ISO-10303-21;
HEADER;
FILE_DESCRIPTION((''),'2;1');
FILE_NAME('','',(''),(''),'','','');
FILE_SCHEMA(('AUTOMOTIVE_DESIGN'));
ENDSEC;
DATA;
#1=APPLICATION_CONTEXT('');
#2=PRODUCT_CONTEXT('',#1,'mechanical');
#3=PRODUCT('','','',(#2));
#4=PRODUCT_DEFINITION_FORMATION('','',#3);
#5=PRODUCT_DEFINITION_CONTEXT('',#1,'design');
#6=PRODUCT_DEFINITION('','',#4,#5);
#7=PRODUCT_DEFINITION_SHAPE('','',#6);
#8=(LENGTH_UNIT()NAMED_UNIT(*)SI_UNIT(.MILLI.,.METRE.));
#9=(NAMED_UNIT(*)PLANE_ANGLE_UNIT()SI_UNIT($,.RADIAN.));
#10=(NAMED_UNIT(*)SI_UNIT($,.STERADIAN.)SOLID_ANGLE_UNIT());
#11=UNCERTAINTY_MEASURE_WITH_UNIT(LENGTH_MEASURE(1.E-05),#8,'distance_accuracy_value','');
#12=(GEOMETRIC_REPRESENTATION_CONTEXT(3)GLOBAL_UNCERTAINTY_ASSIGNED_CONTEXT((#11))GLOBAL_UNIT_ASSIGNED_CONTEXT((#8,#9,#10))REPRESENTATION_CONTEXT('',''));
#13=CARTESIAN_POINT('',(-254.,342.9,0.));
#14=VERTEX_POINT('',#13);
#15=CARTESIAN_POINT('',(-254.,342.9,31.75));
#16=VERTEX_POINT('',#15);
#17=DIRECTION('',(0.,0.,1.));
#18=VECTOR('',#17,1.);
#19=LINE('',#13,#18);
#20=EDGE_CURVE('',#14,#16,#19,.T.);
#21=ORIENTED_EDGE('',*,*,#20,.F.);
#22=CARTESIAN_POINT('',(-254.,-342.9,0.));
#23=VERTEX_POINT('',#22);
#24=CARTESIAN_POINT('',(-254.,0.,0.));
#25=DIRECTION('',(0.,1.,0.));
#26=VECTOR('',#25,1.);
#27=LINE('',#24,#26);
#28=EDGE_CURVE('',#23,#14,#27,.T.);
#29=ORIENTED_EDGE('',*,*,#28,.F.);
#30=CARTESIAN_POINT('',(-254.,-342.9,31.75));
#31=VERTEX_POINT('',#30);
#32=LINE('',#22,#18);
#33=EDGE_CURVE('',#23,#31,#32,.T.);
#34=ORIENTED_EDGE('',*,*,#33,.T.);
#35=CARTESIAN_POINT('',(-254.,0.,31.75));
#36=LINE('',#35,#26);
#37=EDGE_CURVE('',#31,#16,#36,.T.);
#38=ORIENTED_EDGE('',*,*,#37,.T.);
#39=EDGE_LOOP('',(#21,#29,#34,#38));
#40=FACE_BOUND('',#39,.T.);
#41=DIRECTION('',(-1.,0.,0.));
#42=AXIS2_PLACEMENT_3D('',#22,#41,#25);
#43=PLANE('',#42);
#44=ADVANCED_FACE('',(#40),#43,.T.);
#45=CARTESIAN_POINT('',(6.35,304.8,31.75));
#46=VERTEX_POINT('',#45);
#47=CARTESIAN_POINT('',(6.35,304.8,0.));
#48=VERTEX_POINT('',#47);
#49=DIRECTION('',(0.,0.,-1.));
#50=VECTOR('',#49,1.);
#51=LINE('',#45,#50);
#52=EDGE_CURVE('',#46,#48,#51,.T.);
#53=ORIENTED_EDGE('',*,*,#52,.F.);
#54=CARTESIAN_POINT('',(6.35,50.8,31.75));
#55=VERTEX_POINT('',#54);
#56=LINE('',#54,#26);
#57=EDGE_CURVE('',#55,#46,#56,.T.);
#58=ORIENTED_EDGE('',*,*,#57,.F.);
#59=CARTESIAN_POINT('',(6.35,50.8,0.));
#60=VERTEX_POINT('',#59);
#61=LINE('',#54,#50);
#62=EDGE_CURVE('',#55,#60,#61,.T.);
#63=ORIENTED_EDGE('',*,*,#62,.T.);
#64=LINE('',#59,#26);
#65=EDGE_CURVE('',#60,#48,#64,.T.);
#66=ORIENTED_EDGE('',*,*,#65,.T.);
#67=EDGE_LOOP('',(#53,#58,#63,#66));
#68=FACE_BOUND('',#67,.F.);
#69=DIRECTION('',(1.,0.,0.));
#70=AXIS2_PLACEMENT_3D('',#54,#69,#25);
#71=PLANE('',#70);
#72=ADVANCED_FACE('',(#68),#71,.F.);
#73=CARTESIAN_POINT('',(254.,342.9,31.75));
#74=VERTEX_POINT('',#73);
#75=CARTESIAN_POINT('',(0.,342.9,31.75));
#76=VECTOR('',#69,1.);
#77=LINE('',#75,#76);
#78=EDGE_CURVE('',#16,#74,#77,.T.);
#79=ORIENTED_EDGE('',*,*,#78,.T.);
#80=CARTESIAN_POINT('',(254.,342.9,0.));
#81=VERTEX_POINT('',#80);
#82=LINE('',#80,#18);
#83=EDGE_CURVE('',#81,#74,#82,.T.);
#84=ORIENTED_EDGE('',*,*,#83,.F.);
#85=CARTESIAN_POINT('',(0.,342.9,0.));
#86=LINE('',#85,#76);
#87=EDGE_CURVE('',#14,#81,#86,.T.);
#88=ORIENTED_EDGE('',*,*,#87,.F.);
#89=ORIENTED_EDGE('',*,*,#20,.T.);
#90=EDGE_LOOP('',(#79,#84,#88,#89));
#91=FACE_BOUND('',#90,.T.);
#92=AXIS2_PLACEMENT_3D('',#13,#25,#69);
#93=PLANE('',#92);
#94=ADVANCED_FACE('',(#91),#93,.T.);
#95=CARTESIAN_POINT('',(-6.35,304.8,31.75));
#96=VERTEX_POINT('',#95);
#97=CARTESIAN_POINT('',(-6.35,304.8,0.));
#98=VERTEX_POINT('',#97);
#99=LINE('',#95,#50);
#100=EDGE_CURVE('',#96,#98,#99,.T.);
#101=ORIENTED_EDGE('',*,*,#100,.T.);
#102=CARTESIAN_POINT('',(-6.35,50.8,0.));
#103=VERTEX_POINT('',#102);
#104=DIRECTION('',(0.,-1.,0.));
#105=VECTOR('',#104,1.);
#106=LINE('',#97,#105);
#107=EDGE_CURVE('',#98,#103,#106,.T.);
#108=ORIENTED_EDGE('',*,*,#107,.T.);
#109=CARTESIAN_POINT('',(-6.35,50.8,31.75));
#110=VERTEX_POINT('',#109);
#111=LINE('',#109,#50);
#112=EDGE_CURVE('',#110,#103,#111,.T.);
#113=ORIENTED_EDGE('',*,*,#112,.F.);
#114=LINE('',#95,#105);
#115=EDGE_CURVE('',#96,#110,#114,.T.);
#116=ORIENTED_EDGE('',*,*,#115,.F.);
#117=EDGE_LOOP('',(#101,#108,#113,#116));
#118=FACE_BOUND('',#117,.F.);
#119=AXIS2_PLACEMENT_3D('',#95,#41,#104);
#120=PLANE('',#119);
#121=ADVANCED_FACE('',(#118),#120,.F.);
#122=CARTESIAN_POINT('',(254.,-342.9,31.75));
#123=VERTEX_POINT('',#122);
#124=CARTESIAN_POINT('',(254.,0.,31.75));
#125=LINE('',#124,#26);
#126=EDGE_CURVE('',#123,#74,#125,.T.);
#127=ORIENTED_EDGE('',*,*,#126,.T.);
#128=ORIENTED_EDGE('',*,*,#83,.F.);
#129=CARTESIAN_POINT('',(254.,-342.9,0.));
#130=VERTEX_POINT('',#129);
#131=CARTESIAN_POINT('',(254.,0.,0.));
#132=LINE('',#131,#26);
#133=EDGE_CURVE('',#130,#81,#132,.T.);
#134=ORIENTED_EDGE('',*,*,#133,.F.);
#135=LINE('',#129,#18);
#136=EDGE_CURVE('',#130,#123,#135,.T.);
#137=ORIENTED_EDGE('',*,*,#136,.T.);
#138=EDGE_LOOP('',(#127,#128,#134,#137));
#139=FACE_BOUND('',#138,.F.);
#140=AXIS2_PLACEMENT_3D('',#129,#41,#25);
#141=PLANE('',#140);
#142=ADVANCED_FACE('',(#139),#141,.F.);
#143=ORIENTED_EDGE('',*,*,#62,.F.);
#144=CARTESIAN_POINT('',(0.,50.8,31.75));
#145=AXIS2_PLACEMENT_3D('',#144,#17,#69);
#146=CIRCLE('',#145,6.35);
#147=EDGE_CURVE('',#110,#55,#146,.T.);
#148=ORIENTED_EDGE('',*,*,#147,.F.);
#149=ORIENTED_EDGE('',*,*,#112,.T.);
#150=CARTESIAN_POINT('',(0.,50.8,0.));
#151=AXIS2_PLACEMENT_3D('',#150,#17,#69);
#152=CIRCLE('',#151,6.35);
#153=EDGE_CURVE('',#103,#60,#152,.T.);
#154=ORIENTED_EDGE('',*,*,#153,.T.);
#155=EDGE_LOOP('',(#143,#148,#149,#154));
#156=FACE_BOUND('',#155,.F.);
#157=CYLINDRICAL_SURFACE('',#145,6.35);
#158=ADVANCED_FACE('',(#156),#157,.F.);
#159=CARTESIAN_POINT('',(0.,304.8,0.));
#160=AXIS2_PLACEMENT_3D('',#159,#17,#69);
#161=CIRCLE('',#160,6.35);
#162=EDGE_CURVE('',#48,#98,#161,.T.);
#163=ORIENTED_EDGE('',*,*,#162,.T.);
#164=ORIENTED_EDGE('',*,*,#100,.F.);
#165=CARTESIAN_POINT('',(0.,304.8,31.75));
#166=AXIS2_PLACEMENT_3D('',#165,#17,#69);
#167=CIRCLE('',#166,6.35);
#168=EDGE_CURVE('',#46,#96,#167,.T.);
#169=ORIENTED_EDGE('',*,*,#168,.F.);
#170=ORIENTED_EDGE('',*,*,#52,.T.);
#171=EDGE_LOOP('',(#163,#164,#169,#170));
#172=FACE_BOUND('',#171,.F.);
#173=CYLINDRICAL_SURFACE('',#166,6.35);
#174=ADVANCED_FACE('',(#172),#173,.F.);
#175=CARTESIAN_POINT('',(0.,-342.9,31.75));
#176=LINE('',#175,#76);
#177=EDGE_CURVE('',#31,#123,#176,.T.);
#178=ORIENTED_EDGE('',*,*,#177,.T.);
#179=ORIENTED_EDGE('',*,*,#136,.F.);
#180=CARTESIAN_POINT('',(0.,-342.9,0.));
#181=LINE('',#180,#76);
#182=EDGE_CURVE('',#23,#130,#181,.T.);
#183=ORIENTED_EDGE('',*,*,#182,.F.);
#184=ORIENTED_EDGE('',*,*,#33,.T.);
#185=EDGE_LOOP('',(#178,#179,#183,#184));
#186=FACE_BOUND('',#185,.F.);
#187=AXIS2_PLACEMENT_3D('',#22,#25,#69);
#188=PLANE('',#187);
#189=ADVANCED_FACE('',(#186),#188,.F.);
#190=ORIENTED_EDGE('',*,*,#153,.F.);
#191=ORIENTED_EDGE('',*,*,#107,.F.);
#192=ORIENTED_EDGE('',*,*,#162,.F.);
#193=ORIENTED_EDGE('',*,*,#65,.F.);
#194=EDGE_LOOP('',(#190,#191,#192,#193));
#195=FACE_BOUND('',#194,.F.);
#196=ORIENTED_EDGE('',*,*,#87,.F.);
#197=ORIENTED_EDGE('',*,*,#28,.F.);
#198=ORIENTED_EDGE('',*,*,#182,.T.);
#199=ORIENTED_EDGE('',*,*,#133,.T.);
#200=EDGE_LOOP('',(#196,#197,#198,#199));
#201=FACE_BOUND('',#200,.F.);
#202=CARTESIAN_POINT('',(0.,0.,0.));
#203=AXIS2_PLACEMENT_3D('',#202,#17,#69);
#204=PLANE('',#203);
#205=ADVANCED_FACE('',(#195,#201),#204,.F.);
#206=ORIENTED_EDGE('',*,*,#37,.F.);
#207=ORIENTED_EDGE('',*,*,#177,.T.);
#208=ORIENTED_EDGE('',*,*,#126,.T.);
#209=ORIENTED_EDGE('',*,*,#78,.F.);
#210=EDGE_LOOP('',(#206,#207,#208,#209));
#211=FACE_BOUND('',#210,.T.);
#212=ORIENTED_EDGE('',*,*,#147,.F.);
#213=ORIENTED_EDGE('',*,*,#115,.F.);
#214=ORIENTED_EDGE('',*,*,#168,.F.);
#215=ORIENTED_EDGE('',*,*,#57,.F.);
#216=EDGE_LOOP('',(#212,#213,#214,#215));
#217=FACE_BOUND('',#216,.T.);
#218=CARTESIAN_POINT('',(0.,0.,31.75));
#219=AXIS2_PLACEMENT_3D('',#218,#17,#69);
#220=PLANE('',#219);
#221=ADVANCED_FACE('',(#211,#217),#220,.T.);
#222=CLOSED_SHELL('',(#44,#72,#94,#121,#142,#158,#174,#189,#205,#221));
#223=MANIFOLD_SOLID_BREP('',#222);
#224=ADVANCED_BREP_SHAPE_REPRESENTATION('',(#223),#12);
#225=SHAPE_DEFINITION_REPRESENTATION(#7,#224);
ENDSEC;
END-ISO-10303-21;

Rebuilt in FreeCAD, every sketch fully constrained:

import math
import FreeCAD as App
import Part
import Sketcher
Q = App.Units.Quantity

doc = App.newDocument("Part")
body = doc.addObject("PartDesign::Body", "Body")

sketch1 = body.newObject("Sketcher::SketchObject", "Sketch")
sketch1.AttachmentSupport = (doc.getObject("XY_Plane"), [""])
sketch1.MapMode = "FlatFace"
sketch1.addGeometry([
    Part.LineSegment(App.Vector(-254, 342.9, 0), App.Vector(-254, -342.9, 0)),
    Part.LineSegment(App.Vector(-254, -342.9, 0), App.Vector(254, -342.9, 0)),
    Part.LineSegment(App.Vector(254, -342.9, 0), App.Vector(254, 342.9, 0)),
    Part.LineSegment(App.Vector(254, 342.9, 0), App.Vector(-254, 342.9, 0)),
], False)
sketch1.addConstraint([
    Sketcher.Constraint("Coincident", 0, 2, 1, 1),
    Sketcher.Constraint("Coincident", 1, 2, 2, 1),
    Sketcher.Constraint("Coincident", 2, 2, 3, 1),
    Sketcher.Constraint("Coincident", 3, 2, 0, 1),
    Sketcher.Constraint("Vertical", 0),
    Sketcher.Constraint("Horizontal", 1),
    Sketcher.Constraint("Vertical", 2),
    Sketcher.Constraint("Horizontal", 3),
    Sketcher.Constraint("Symmetric", 0, 2, 2, 2, -1, 1),
    Sketcher.Constraint("DistanceX", 1, 1, 1, 2, Q("20 in")),
    Sketcher.Constraint("DistanceY", 0, 2, 0, 1, Q("27 in")),
])
pad1 = body.newObject("PartDesign::Pad", "Pad")
pad1.Profile = sketch1
pad1.Length = Q("1.25 in")

sketch2 = body.newObject("Sketcher::SketchObject", "Sketch001")
sketch2.AttachmentSupport = (doc.getObject("XY_Plane"), [""])
sketch2.MapMode = "FlatFace"
sketch2.AttachmentOffset = App.Placement(App.Vector(0, 0, 1.25 * 25.4), App.Rotation())
sketch2.addGeometry([
    Part.ArcOfCircle(Part.Circle(App.Vector(0, 304.8, 0), App.Vector(0, 0, 1), 6.35), math.radians(0), math.radians(180)),
    Part.LineSegment(App.Vector(-6.35, 304.8, 0), App.Vector(-6.35, 50.8, 0)),
    Part.ArcOfCircle(Part.Circle(App.Vector(0, 50.8, 0), App.Vector(0, 0, 1), 6.35), math.radians(180), math.radians(360)),
    Part.LineSegment(App.Vector(6.35, 50.8, 0), App.Vector(6.35, 304.8, 0)),
], False)
sketch2.addConstraint([
    Sketcher.Constraint("Tangent", 0, 2, 1, 1),
    Sketcher.Constraint("Tangent", 1, 2, 2, 1),
    Sketcher.Constraint("Tangent", 2, 2, 3, 1),
    Sketcher.Constraint("Tangent", 3, 2, 0, 1),
    Sketcher.Constraint("Vertical", 1),
    Sketcher.Constraint("Vertical", 3),
    Sketcher.Constraint("PointOnObject", 0, 3, -2),
    Sketcher.Constraint("DistanceY", 1, 2, 1, 1, Q("10 in")),
    Sketcher.Constraint("Radius", 0, Q("0.25 in")),
    Sketcher.Constraint("DistanceY", -1, 1, 0, 3, Q("12 in")),
])
pocket1 = body.newObject("PartDesign::Pocket", "Pocket")
pocket1.Profile = sketch2
pocket1.Length = Q("1.25 in")

doc.recompute()
